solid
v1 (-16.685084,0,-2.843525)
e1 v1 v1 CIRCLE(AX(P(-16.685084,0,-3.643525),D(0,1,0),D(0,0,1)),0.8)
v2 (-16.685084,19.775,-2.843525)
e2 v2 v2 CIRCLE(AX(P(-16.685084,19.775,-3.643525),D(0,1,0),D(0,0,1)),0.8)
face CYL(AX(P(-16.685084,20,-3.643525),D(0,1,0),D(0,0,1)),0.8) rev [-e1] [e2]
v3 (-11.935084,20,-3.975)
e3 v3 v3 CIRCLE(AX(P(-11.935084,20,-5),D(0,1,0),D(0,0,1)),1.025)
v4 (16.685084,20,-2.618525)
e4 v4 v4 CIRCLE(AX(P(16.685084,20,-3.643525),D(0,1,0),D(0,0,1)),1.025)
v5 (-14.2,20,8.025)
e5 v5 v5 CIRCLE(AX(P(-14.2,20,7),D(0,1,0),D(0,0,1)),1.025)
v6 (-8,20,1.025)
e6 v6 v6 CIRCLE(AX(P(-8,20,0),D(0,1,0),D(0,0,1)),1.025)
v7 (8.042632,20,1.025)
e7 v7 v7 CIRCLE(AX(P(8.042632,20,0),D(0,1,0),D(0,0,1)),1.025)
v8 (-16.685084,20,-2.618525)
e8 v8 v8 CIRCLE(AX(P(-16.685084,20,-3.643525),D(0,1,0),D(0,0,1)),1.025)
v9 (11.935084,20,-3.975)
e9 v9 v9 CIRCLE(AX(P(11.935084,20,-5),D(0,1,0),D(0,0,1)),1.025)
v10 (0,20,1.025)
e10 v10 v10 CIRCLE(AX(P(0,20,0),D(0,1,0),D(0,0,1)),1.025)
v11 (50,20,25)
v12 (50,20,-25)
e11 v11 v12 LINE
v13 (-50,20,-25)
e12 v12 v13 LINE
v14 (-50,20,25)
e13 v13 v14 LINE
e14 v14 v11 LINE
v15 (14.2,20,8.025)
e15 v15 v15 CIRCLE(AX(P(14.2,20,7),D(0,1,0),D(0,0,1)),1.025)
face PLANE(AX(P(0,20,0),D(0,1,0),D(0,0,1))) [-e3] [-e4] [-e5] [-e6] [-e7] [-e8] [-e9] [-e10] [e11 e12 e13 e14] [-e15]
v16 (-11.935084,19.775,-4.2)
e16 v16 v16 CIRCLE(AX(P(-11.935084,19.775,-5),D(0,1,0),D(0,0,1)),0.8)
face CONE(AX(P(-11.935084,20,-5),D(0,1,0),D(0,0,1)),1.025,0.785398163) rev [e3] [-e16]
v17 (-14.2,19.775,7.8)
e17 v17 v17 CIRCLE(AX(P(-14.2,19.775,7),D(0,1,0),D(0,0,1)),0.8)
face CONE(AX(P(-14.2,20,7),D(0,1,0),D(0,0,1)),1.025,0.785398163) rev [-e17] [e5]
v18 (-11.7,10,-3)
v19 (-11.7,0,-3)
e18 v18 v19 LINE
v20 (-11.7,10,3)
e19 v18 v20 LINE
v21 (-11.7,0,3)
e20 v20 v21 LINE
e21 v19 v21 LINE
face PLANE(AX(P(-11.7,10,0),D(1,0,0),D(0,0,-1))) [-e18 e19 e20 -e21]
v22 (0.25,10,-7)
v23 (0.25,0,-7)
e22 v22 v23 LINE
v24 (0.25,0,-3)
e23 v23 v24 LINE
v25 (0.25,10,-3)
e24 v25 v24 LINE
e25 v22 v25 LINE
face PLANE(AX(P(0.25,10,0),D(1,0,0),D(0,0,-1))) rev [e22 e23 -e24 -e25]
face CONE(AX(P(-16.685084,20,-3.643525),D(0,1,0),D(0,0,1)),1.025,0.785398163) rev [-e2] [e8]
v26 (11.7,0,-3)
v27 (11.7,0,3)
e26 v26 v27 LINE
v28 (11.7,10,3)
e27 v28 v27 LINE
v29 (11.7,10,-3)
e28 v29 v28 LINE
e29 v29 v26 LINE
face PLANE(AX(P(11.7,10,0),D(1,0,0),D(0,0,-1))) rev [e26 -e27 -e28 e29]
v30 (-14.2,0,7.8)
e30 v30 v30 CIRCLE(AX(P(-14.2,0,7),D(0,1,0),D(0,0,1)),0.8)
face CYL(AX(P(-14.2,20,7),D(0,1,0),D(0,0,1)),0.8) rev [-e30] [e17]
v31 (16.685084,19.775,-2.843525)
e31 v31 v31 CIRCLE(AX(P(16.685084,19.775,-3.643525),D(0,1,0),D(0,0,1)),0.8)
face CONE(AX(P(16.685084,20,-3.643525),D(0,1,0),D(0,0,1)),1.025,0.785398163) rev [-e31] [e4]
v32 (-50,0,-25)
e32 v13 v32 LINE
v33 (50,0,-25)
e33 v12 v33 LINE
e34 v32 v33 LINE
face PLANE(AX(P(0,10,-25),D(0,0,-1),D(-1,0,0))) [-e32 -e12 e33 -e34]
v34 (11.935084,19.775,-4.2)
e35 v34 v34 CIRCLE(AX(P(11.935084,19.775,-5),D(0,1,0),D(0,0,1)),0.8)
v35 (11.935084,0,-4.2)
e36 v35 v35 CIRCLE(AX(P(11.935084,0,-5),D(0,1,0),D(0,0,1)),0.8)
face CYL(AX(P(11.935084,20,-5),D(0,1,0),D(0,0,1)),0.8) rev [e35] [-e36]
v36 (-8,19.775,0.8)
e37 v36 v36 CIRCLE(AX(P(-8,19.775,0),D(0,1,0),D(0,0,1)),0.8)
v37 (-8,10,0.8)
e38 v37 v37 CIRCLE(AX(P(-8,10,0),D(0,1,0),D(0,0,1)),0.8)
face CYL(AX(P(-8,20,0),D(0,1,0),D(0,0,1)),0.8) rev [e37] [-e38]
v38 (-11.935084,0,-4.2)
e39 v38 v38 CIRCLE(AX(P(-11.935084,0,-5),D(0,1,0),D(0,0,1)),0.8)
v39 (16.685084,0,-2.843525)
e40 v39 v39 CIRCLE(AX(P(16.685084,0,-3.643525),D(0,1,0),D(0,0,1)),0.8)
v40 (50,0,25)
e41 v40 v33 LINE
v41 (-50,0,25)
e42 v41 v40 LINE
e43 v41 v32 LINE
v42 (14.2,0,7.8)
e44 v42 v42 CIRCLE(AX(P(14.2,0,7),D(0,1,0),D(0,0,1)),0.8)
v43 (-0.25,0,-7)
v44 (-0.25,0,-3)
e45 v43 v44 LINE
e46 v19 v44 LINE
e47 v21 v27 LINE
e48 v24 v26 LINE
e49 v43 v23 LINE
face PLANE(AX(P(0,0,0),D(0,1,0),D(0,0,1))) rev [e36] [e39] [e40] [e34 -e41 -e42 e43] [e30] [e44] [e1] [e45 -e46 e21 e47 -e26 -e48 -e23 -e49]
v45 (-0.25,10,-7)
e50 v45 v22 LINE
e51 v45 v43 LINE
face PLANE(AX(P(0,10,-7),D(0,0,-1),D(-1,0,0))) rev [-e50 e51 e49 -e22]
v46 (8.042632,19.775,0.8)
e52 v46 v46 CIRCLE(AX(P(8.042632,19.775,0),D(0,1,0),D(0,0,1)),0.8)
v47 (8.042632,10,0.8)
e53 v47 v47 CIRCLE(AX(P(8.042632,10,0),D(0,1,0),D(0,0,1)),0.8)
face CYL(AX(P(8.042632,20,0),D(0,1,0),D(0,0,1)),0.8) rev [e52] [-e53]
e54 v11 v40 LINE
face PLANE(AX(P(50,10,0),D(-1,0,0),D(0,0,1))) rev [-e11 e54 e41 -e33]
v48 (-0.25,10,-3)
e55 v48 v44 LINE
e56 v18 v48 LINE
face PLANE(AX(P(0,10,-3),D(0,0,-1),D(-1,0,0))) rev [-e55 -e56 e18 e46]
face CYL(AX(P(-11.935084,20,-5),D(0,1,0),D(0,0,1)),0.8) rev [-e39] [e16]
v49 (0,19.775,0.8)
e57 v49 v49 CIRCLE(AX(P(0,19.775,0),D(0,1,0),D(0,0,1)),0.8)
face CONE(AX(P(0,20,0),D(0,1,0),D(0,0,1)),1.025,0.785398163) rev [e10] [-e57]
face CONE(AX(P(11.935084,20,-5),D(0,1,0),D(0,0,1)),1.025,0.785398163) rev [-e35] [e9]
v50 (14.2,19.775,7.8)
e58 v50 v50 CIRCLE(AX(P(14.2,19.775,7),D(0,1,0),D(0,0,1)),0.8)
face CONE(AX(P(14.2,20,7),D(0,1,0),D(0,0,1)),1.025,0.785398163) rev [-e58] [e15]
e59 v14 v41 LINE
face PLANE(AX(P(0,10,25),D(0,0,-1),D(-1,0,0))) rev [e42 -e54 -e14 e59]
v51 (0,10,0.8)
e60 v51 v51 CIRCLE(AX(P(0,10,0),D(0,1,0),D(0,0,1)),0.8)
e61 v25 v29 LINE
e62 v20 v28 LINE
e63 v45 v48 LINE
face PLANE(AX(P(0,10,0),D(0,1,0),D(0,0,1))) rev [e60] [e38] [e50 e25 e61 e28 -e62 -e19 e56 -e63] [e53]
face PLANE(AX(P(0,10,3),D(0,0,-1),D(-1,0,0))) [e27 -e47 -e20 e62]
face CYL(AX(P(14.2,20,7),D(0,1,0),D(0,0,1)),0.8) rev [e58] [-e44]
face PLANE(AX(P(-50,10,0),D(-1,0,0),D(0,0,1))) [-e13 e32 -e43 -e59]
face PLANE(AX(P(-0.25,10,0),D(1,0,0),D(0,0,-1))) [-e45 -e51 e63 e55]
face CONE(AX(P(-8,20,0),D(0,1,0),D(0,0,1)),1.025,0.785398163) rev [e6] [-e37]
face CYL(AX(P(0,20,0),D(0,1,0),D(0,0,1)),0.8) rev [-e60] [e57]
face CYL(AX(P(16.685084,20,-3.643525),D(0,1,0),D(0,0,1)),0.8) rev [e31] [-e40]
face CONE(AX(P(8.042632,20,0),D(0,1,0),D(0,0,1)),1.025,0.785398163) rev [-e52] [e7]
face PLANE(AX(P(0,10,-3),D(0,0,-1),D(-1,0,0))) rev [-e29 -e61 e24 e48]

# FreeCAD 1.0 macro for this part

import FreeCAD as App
import Part
import Sketcher

doc = App.newDocument("Part")
body = doc.addObject("PartDesign::Body", "Body")

# Sketch on XZ plane
sketch1 = body.newObject("Sketcher::SketchObject", "Sketch")
sketch1.AttachmentSupport = (doc.getObject("XZ_Plane"), [""])
sketch1.MapMode = "FlatFace"
sketch1.addGeometry([
    Part.LineSegment(App.Vector(-50, -25, 0), App.Vector(-50, 25, 0)),  # 0
    Part.LineSegment(App.Vector(-50, 25, 0), App.Vector(50, 25, 0)),  # 1
    Part.LineSegment(App.Vector(50, 25, 0), App.Vector(50, -25, 0)),  # 2
    Part.LineSegment(App.Vector(50, -25, 0), App.Vector(-50, -25, 0)),  # 3
    Part.Circle(App.Vector(-14.2, 7, 0), App.Vector(0, 0, 1), 0.5),  # 4
    Part.Circle(App.Vector(14.2, 7, 0), App.Vector(0, 0, 1), 0.5),  # 5
    Part.Circle(App.Vector(-16.7, -3.6, 0), App.Vector(0, 0, 1), 0.5),  # 6
    Part.Circle(App.Vector(-11.9, -5, 0), App.Vector(0, 0, 1), 0.5),  # 7
    Part.LineSegment(App.Vector(-11.7, 3, 0), App.Vector(-11.7, -3, 0)),  # 8
    Part.LineSegment(App.Vector(-11.7, -3, 0), App.Vector(-0.2, -3, 0)),  # 9
    Part.LineSegment(App.Vector(-0.2, -3, 0), App.Vector(-0.2, -7, 0)),  # 10
    Part.LineSegment(App.Vector(-0.2, -7, 0), App.Vector(0.2, -7, 0)),  # 11
    Part.LineSegment(App.Vector(0.2, -7, 0), App.Vector(0.2, -3, 0)),  # 12
    Part.LineSegment(App.Vector(0.2, -3, 0), App.Vector(11.7, -3, 0)),  # 13
    Part.LineSegment(App.Vector(11.7, -3, 0), App.Vector(11.7, 3, 0)),  # 14
    Part.LineSegment(App.Vector(11.7, 3, 0), App.Vector(-11.7, 3, 0)),  # 15
    Part.Circle(App.Vector(11.9, -5, 0), App.Vector(0, 0, 1), 0.5),  # 16
    Part.Circle(App.Vector(16.7, -3.6, 0), App.Vector(0, 0, 1), 0.5),  # 17
], False)
sketch1.addConstraint([
    Sketcher.Constraint("Coincident", 0, 2, 1, 1),
    Sketcher.Constraint("Coincident", 1, 2, 2, 1),
    Sketcher.Constraint("Coincident", 2, 2, 3, 1),
    Sketcher.Constraint("Coincident", 3, 2, 0, 1),
    Sketcher.Constraint("Coincident", 8, 2, 9, 1),
    Sketcher.Constraint("Coincident", 9, 2, 10, 1),
    Sketcher.Constraint("Coincident", 10, 2, 11, 1),
    Sketcher.Constraint("Coincident", 11, 2, 12, 1),
    Sketcher.Constraint("Coincident", 12, 2, 13, 1),
    Sketcher.Constraint("Coincident", 13, 2, 14, 1),
    Sketcher.Constraint("Coincident", 14, 2, 15, 1),
    Sketcher.Constraint("Coincident", 15, 2, 8, 1),
    Sketcher.Constraint("Vertical", 0),
    Sketcher.Constraint("Horizontal", 1),
    Sketcher.Constraint("Vertical", 2),
    Sketcher.Constraint("Horizontal", 3),
    Sketcher.Constraint("Vertical", 8),
    Sketcher.Constraint("Horizontal", 9),
    Sketcher.Constraint("Vertical", 10),
    Sketcher.Constraint("Horizontal", 11),
    Sketcher.Constraint("Vertical", 12),
    Sketcher.Constraint("Horizontal", 13),
    Sketcher.Constraint("Vertical", 14),
    Sketcher.Constraint("Horizontal", 15),
    Sketcher.Constraint("Equal", 4, 5),
    Sketcher.Constraint("Equal", 5, 6),
    Sketcher.Constraint("Equal", 6, 7),
    Sketcher.Constraint("Equal", 7, 16),
    Sketcher.Constraint("Equal", 16, 17),
    Sketcher.Constraint("Symmetric", 0, 2, 2, 2, -1, 1),
    Sketcher.Constraint("Symmetric", 8, 2, 14, 2, -1, 1),
    Sketcher.Constraint("Symmetric", 4, 3, 5, 3, -2),
    Sketcher.Constraint("Symmetric", 7, 3, 16, 3, -2),
    Sketcher.Constraint("Symmetric", 6, 3, 17, 3, -2),
    Sketcher.Constraint("Symmetric", 9, 2, 12, 2, -2),
    Sketcher.Constraint("Diameter", 4, 1.0),
    Sketcher.Constraint("DistanceX", 1, 1, 1, 2, 100.0),
    Sketcher.Constraint("DistanceY", 0, 1, 0, 2, 50.0),
    Sketcher.Constraint("DistanceY", 8, 2, 8, 1, 6.0),
    Sketcher.Constraint("DistanceY", 10, 2, 10, 1, 4.0),
    Sketcher.Constraint("DistanceX", 11, 1, 11, 2, 0.5),
    Sketcher.Constraint("DistanceX", 15, 2, 15, 1, 23.4),
    Sketcher.Constraint("DistanceY", -1, 1, 4, 3, 7.0),
    Sketcher.Constraint("DistanceY", 7, 3, -1, 1, 5.0),
    Sketcher.Constraint("DistanceX", 4, 3, -1, 1, 14.2),
    Sketcher.Constraint("DistanceX", 6, 3, 7, 3, 4.75),
    Sketcher.Constraint("DistanceX", 7, 3, 16, 3, 23.870168),
    Sketcher.Constraint("DistanceY", 6, 3, -1, 1, 3.643525),
])
pad1 = body.newObject("PartDesign::Pad", "Pad")
pad1.Profile = sketch1
pad1.Length = 10
pad1.Reversed = True

# Sketch on XZ plane
sketch2 = body.newObject("Sketcher::SketchObject", "Sketch001")
sketch2.AttachmentSupport = (doc.getObject("XZ_Plane"), [""])
sketch2.MapMode = "FlatFace"
sketch2.AttachmentOffset = App.Placement(App.Vector(0, 0, -10), App.Rotation())
sketch2.addGeometry([
    Part.LineSegment(App.Vector(-50, -25, 0), App.Vector(-50, 25, 0)),
    Part.LineSegment(App.Vector(-50, 25, 0), App.Vector(50, 25, 0)),
    Part.LineSegment(App.Vector(50, 25, 0), App.Vector(50, -25, 0)),
    Part.LineSegment(App.Vector(50, -25, 0), App.Vector(-50, -25, 0)),
], False)
sketch2.addConstraint([
    Sketcher.Constraint("Coincident", 0, 2, 1, 1),
    Sketcher.Constraint("Coincident", 1, 2, 2, 1),
    Sketcher.Constraint("Coincident", 2, 2, 3, 1),
    Sketcher.Constraint("Coincident", 3, 2, 0, 1),
    Sketcher.Constraint("Vertical", 0),
    Sketcher.Constraint("Horizontal", 1),
    Sketcher.Constraint("Vertical", 2),
    Sketcher.Constraint("Horizontal", 3),
    Sketcher.Constraint("Symmetric", 0, 2, 2, 2, -1, 1),
    Sketcher.Constraint("DistanceX", 1, 1, 1, 2, 100.0),
    Sketcher.Constraint("DistanceY", 0, 1, 0, 2, 50.0),
])
pad2 = body.newObject("PartDesign::Pad", "Pad001")
pad2.Profile = sketch2
pad2.Length = 10
pad2.Reversed = True

# Sketch on XZ plane
sketch3 = body.newObject("Sketcher::SketchObject", "Sketch002")
sketch3.AttachmentSupport = (doc.getObject("XZ_Plane"), [""])
sketch3.MapMode = "FlatFace"
sketch3.AttachmentOffset = App.Placement(App.Vector(0, 0, -20), App.Rotation())
sketch3.addGeometry([
    Part.Circle(App.Vector(-16.7, -3.6, 0), App.Vector(0, 0, 1), 0.8),  # 0
    Part.Circle(App.Vector(-11.9, -5, 0), App.Vector(0, 0, 1), 0.8),  # 1
    Part.Circle(App.Vector(11.9, -5, 0), App.Vector(0, 0, 1), 0.8),  # 2
    Part.Circle(App.Vector(16.7, -3.6, 0), App.Vector(0, 0, 1), 0.8),  # 3
    Part.Circle(App.Vector(14.2, 7, 0), App.Vector(0, 0, 1), 0.8),  # 4
    Part.Circle(App.Vector(-14.2, 7, 0), App.Vector(0, 0, 1), 0.8),  # 5
    Part.Circle(App.Vector(-8, 0, 0), App.Vector(0, 0, 1), 0.8),  # 6
    Part.Circle(App.Vector(8, 0, 0), App.Vector(0, 0, 1), 0.8),  # 7
    Part.Circle(App.Vector(0, 0, 0), App.Vector(0, 0, 1), 0.8),  # 8
], False)
sketch3.addConstraint([
    Sketcher.Constraint("Coincident", 8, 3, -1, 1),
    Sketcher.Constraint("Equal", 0, 1),
    Sketcher.Constraint("Equal", 1, 2),
    Sketcher.Constraint("Equal", 2, 3),
    Sketcher.Constraint("Equal", 3, 4),
    Sketcher.Constraint("Equal", 4, 5),
    Sketcher.Constraint("Equal", 5, 6),
    Sketcher.Constraint("Equal", 6, 7),
    Sketcher.Constraint("Equal", 7, 8),
    Sketcher.Constraint("Symmetric", 1, 3, 2, 3, -2),
    Sketcher.Constraint("Symmetric", 0, 3, 3, 3, -2),
    Sketcher.Constraint("Symmetric", 4, 3, 5, 3, -2),
    Sketcher.Constraint("PointOnObject", 6, 3, -1),
    Sketcher.Constraint("PointOnObject", 7, 3, -1),
    Sketcher.Constraint("Diameter", 0, 1.6),
    Sketcher.Constraint("DistanceY", 1, 3, -1, 1, 5.0),
    Sketcher.Constraint("DistanceY", -1, 1, 4, 3, 7.0),
    Sketcher.Constraint("DistanceX", 6, 3, -1, 1, 8.0),
    Sketcher.Constraint("DistanceX", -1, 1, 4, 3, 14.2),
    Sketcher.Constraint("DistanceX", 0, 3, 1, 3, 4.75),
    Sketcher.Constraint("DistanceX", -1, 1, 7, 3, 8.042632),
    Sketcher.Constraint("DistanceX", 1, 3, 2, 3, 23.870168),
    Sketcher.Constraint("DistanceY", 0, 3, -1, 1, 3.643525),
])
doc.recompute()
hole = body.newObject("PartDesign::Hole", "Hole")
hole.Profile = sketch3
hole.ThreadType = "None"
hole.Diameter = 1.6
hole.DepthType = "Dimension"
hole.Depth = 20
hole.DrillPoint = "Angled"
hole.DrillPointAngle = 118
hole.HoleCutType = "Countersink"
hole.HoleCutDiameter = 2.05
hole.HoleCutCountersinkAngle = 90
hole.Reversed = True

doc.recompute()
